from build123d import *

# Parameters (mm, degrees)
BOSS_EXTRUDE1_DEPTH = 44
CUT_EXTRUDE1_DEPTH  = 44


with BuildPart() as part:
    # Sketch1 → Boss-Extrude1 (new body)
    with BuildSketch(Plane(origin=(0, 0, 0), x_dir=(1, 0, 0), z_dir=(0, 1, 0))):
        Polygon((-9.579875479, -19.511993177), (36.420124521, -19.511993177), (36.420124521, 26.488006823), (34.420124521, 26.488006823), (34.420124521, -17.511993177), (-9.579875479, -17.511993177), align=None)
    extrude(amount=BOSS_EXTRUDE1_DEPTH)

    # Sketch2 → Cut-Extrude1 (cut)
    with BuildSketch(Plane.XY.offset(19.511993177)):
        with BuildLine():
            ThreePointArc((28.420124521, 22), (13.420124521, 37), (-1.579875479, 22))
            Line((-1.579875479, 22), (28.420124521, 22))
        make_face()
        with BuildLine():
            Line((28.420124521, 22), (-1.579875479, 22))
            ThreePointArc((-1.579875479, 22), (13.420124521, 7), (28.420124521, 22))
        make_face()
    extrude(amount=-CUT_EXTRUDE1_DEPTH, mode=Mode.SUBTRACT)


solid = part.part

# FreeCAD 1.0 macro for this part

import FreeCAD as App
import Part
import Sketcher

doc = App.newDocument("Part")
body = doc.addObject("PartDesign::Body", "Body")

sketch1 = body.newObject("Sketcher::SketchObject", "Sketch")
sketch1.AttachmentSupport = (doc.getObject("XZ_Plane"), [""])
sketch1.MapMode = "FlatFace"
sketch1.addGeometry(Part.LineSegment(App.Vector(-9.6, 19.5, 0), App.Vector(36.4, 19.5, 0)), False)
sketch1.addGeometry(Part.LineSegment(App.Vector(36.4, 19.5, 0), App.Vector(36.4, -26.5, 0)), False)
sketch1.addGeometry(Part.LineSegment(App.Vector(36.4, -26.5, 0), App.Vector(34.4, -26.5, 0)), False)
sketch1.addGeometry(Part.LineSegment(App.Vector(34.4, -26.5, 0), App.Vector(34.4, 17.5, 0)), False)
sketch1.addGeometry(Part.LineSegment(App.Vector(34.4, 17.5, 0), App.Vector(-9.6, 17.5, 0)), False)
sketch1.addGeometry(Part.LineSegment(App.Vector(-9.6, 17.5, 0), App.Vector(-9.6, 19.5, 0)), False)
sketch1.addConstraint(Sketcher.Constraint("Coincident", 0, 2, 1, 1))
sketch1.addConstraint(Sketcher.Constraint("Coincident", 1, 2, 2, 1))
sketch1.addConstraint(Sketcher.Constraint("Coincident", 2, 2, 3, 1))
sketch1.addConstraint(Sketcher.Constraint("Coincident", 3, 2, 4, 1))
sketch1.addConstraint(Sketcher.Constraint("Coincident", 4, 2, 5, 1))
sketch1.addConstraint(Sketcher.Constraint("Coincident", 5, 2, 0, 1))
sketch1.addConstraint(Sketcher.Constraint("Horizontal", 0))
sketch1.addConstraint(Sketcher.Constraint("Vertical", 1))
sketch1.addConstraint(Sketcher.Constraint("Horizontal", 2))
sketch1.addConstraint(Sketcher.Constraint("Vertical", 3))
sketch1.addConstraint(Sketcher.Constraint("Horizontal", 4))
sketch1.addConstraint(Sketcher.Constraint("Vertical", 5))
sketch1.addConstraint(Sketcher.Constraint("Equal", 0, 1))
sketch1.addConstraint(Sketcher.Constraint("Equal", 4, 3))
sketch1.addConstraint(Sketcher.Constraint("DistanceX", 0, 1, 0, 2, 46.0))
sketch1.addConstraint(Sketcher.Constraint("DistanceX", 2, 2, 2, 1, 2.0))
sketch1.addConstraint(Sketcher.Constraint("DistanceX", -1, 1, 0, 2, 36.420125))
sketch1.addConstraint(Sketcher.Constraint("DistanceY", -1, 1, 0, 2, 19.511993))
pad1 = body.newObject("PartDesign::Pad", "Pad")
pad1.Profile = sketch1
pad1.Length = 44
pad1.Reversed = True

sketch2 = body.newObject("Sketcher::SketchObject", "Sketch001")
sketch2.AttachmentSupport = (doc.getObject("XY_Plane"), [""])
sketch2.MapMode = "FlatFace"
sketch2.AttachmentOffset = App.Placement(App.Vector(0, 0, 19.511993), App.Rotation())
sketch2.addGeometry(Part.Circle(App.Vector(13, 22, 0), App.Vector(0, 0, 1), 15), False)
sketch2.addConstraint(Sketcher.Constraint("Diameter", 0, 30.0))
sketch2.addConstraint(Sketcher.Constraint("DistanceY", -1, 1, 0, 3, 22.0))
sketch2.addConstraint(Sketcher.Constraint("DistanceX", -1, 1, 0, 3, 13.420125))
pocket1 = body.newObject("PartDesign::Pocket", "Pocket")
pocket1.Profile = sketch2
pocket1.Length = 44

doc.recompute()
